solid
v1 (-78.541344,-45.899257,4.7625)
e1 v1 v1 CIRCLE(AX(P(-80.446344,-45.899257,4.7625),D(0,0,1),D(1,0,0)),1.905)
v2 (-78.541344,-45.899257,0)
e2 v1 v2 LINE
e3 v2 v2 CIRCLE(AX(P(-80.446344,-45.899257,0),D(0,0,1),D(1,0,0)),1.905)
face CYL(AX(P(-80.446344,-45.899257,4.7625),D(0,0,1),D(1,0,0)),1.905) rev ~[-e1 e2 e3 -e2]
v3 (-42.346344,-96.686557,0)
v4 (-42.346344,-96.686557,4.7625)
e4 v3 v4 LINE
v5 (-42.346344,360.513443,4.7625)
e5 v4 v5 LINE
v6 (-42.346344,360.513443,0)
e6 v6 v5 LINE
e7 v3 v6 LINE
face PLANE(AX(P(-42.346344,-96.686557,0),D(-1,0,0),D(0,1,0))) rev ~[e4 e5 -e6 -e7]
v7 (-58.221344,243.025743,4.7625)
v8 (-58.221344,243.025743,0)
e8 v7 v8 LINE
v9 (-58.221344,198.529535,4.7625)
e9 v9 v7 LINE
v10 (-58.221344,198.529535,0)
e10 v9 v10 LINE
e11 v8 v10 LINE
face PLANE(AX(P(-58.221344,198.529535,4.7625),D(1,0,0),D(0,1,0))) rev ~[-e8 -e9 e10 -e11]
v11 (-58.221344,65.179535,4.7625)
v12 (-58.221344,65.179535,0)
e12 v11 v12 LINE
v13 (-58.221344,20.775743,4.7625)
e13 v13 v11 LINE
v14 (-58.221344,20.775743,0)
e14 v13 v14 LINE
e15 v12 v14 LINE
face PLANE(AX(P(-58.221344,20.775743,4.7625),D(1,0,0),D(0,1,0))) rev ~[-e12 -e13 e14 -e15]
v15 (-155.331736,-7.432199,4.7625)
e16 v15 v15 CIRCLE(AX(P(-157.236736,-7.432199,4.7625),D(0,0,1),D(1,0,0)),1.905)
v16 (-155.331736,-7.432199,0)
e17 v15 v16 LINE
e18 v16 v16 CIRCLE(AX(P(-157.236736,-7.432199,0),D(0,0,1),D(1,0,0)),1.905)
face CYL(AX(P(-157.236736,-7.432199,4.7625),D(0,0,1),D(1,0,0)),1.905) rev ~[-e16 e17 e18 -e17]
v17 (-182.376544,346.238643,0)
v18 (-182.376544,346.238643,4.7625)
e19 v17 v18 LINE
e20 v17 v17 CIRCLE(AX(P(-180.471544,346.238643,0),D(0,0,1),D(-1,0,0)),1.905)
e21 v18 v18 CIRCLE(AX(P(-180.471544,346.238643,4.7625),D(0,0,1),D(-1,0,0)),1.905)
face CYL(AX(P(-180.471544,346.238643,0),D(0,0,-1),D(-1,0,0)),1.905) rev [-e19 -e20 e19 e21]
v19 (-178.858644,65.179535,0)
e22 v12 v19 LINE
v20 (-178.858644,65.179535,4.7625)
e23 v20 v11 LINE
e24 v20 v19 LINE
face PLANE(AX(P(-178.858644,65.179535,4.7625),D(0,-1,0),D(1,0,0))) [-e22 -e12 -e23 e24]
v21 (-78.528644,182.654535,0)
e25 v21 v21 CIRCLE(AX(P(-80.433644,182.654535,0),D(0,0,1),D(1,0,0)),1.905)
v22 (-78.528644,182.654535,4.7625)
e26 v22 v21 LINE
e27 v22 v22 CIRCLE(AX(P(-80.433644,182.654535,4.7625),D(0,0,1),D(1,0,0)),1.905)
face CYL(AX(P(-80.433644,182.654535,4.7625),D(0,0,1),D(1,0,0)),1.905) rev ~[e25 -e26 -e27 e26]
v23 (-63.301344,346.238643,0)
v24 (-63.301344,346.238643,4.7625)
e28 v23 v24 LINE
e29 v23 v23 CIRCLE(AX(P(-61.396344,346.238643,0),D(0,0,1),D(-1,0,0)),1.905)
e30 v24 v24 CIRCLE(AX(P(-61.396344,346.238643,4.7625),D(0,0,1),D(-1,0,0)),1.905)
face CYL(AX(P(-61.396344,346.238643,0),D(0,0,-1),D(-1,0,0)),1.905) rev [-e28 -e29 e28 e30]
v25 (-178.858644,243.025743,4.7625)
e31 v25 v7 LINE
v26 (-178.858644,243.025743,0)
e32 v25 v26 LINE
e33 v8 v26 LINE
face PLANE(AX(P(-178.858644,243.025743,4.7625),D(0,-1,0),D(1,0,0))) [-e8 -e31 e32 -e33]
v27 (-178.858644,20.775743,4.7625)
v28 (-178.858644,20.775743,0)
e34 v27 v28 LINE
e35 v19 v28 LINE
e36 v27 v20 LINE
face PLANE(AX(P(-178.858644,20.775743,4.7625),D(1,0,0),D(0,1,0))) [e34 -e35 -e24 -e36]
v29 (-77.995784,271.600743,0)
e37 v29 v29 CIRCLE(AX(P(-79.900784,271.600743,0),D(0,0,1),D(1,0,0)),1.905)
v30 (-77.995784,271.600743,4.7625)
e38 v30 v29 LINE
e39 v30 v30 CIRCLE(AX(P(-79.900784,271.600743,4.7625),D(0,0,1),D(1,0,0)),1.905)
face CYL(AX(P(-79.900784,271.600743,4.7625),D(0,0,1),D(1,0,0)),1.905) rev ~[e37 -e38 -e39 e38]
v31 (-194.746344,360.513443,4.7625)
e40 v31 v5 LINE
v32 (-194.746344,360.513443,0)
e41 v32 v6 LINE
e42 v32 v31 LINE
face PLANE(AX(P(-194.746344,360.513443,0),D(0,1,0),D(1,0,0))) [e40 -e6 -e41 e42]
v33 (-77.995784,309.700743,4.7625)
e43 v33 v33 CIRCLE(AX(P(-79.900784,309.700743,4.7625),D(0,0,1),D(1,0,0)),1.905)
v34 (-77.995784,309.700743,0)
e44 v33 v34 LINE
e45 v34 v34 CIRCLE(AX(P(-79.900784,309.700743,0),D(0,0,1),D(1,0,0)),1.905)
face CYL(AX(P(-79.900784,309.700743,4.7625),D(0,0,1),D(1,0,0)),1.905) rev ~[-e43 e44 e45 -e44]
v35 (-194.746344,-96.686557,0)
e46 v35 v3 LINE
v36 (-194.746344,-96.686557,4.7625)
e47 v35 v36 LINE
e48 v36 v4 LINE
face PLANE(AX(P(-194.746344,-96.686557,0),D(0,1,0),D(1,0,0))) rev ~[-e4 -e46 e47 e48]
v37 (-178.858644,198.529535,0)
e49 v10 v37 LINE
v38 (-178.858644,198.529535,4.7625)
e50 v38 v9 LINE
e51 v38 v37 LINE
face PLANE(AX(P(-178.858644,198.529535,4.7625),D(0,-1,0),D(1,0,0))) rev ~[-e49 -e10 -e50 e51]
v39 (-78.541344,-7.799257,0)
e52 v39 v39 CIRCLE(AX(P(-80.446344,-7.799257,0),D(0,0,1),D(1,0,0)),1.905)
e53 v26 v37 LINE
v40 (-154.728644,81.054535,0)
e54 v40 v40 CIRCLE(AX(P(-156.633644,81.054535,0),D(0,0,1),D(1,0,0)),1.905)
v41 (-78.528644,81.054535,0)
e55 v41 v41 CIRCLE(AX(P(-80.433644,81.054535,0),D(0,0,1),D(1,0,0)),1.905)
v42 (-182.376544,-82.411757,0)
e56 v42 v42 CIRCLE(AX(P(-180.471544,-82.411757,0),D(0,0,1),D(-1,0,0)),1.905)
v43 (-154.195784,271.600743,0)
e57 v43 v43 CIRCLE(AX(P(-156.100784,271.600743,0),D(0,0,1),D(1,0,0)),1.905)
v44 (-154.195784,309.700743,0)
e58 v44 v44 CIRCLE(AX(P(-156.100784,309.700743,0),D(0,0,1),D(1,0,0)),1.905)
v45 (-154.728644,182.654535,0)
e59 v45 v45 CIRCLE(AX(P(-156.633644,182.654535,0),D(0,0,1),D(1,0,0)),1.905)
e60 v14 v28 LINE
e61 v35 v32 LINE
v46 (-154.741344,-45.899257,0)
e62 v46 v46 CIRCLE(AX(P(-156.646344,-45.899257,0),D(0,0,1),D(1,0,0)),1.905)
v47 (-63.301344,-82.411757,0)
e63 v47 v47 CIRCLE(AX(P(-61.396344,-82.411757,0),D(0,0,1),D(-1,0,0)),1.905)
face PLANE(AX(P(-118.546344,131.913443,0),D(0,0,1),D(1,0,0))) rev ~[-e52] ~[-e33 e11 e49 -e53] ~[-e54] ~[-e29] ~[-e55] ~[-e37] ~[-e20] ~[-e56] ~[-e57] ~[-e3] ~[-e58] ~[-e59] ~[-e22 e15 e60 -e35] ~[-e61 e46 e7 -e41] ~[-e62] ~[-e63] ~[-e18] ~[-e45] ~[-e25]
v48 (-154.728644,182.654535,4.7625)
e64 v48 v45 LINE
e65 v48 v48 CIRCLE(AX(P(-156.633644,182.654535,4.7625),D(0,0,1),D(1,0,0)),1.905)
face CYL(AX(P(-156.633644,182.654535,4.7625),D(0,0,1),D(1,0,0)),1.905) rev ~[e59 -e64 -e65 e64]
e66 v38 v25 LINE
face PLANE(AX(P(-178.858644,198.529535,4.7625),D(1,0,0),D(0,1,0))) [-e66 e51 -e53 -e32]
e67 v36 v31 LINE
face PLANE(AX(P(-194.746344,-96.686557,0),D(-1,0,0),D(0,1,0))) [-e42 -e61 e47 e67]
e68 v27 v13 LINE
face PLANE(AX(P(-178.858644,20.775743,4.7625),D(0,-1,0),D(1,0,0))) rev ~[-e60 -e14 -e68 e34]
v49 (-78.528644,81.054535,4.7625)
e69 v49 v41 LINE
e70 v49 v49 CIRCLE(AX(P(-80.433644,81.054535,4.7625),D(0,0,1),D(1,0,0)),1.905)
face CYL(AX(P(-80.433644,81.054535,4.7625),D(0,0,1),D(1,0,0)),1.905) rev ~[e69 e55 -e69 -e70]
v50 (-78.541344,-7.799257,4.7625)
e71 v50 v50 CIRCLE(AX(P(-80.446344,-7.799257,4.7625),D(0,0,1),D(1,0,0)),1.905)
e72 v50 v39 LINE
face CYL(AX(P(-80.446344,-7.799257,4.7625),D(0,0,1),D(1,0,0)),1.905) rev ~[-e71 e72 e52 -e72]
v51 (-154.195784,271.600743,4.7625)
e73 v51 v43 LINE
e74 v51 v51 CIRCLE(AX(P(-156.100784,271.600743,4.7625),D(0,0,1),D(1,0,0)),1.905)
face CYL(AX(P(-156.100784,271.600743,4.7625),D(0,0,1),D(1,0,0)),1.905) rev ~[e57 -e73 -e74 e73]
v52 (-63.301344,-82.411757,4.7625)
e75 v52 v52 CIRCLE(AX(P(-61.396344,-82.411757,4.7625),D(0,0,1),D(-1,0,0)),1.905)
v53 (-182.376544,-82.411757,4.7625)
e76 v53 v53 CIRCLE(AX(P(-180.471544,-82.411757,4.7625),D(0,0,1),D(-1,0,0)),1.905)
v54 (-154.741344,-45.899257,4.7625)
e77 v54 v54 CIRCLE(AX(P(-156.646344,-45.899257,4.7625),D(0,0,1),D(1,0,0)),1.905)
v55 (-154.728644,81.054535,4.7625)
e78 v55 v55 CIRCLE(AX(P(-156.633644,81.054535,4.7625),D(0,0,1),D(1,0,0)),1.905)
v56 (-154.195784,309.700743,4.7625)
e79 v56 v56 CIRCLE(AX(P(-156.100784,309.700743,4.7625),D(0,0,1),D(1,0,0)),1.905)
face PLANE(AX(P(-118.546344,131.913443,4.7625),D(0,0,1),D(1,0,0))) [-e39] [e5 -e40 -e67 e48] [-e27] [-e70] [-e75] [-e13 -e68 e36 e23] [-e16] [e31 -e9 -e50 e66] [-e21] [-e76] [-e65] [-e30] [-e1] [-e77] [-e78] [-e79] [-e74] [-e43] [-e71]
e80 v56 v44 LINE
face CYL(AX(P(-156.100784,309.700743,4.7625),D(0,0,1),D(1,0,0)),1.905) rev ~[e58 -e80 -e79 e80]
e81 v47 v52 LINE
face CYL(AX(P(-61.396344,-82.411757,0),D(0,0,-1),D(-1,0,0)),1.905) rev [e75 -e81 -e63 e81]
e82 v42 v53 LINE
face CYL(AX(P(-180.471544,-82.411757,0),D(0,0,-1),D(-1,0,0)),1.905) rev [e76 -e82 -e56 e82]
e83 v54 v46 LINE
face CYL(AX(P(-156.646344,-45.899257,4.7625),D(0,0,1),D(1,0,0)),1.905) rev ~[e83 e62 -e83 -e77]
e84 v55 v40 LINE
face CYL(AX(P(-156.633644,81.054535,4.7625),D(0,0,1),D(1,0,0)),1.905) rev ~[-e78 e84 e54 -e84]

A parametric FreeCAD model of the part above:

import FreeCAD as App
import Part
import Sketcher
Q = App.Units.Quantity


def add_polygon(sketch, points):
    """Adds a closed chain of lines whose ends are joined by coincident constraints."""
    first, n = sketch.GeometryCount, len(points)
    for a, b in zip(points, points[1:] + points[:1]):
        sketch.addGeometry(Part.LineSegment(App.Vector(*a, 0), App.Vector(*b, 0)), False)
    for i in range(n):
        sketch.addConstraint(Sketcher.Constraint("Coincident", first + i, 2, first + (i + 1) % n, 1))

doc = App.newDocument("Part")
body = doc.addObject("PartDesign::Body", "Body")

# Sketch on XY plane
sketch1 = body.newObject("Sketcher::SketchObject", "Sketch")
sketch1.AttachmentSupport = (doc.getObject("XY_Plane"), [""])
sketch1.MapMode = "FlatFace"
add_polygon(sketch1, [(-194.746344, 360.513443), (-194.746344, -96.686557), (-42.346344, -96.686557), (-42.346344, 360.513443)])  # lines 0-3
sketch1.addGeometry(Part.Circle(App.Vector(-180.471544, -82.411757, 0), App.Vector(0, 0, 1), 1.905), False)  # 4
sketch1.addGeometry(Part.Circle(App.Vector(-61.396344, -82.411757, 0), App.Vector(0, 0, 1), 1.905), False)  # 5
sketch1.addGeometry(Part.Circle(App.Vector(-180.471544, 346.238643, 0), App.Vector(0, 0, 1), 1.905), False)  # 6
sketch1.addGeometry(Part.Circle(App.Vector(-61.396344, 346.238643, 0), App.Vector(0, 0, 1), 1.905), False)  # 7
sketch1.addConstraint([
    Sketcher.Constraint("Vertical", 0),
    Sketcher.Constraint("Horizontal", 1),
    Sketcher.Constraint("Vertical", 2),
    Sketcher.Constraint("Horizontal", 3),
    Sketcher.Constraint("Equal", 4, 5),
    Sketcher.Constraint("Equal", 5, 6),
    Sketcher.Constraint("Equal", 6, 7),
    Sketcher.Constraint("Horizontal", 4, 3, 5, 3),
    Sketcher.Constraint("Horizontal", 6, 3, 7, 3),
    Sketcher.Constraint("Vertical", 4, 3, 6, 3),
    Sketcher.Constraint("Vertical", 5, 3, 7, 3),
    Sketcher.Constraint("Diameter", 4, Q("0.15 in")),
    Sketcher.Constraint("DistanceX", 1, 1, 1, 2, Q("6 in")),
    Sketcher.Constraint("DistanceY", 0, 2, 0, 1, Q("18 in")),
    Sketcher.Constraint("DistanceX", 0, 2, 5, 3, Q("5.25 in")),
    Sketcher.Constraint("DistanceX", 4, 3, 5, 3, Q("4.688 in")),
    Sketcher.Constraint("DistanceY", 4, 3, 6, 3, Q("16.876 in")),
    Sketcher.Constraint("DistanceY", 0, 2, 4, 3, Q("0.562 in")),
    Sketcher.Constraint("DistanceX", 4, 3, -1, 1, 180.471544),
    Sketcher.Constraint("DistanceY", 4, 3, -1, 1, 82.411757),
])
pad1 = body.newObject("PartDesign::Pad", "Pad")
pad1.Profile = sketch1
pad1.Length = Q("0.1875 in")

# Sketch on XY plane
sketch2 = body.newObject("Sketcher::SketchObject", "Sketch001")
sketch2.AttachmentSupport = (doc.getObject("XY_Plane"), [""])
sketch2.MapMode = "FlatFace"
sketch2.AttachmentOffset = App.Placement(App.Vector(0, 0, 0.1875 * 25.4), App.Rotation())
sketch2.addGeometry(Part.Circle(App.Vector(-156.633644, 182.654535, 0), App.Vector(0, 0, 1), 1.905), False)
sketch2.addConstraint([
    Sketcher.Constraint("Diameter", 0, Q("0.15 in")),
    Sketcher.Constraint("DistanceX", 0, 3, -1, 1, 156.633644),
    Sketcher.Constraint("DistanceY", -1, 1, 0, 3, 182.654535),
])
pocket1 = body.newObject("PartDesign::Pocket", "Pocket")
pocket1.Profile = sketch2
pocket1.Type = "UpToFirst"

# Sketch on XY plane
sketch3 = body.newObject("Sketcher::SketchObject", "Sketch002")
sketch3.AttachmentSupport = (doc.getObject("XY_Plane"), [""])
sketch3.MapMode = "FlatFace"
sketch3.AttachmentOffset = App.Placement(App.Vector(0, 0, 0.1875 * 25.4), App.Rotation())
sketch3.addGeometry(Part.Circle(App.Vector(-80.433644, 182.654535, 0), App.Vector(0, 0, 1), 1.905), False)
sketch3.addConstraint([
    Sketcher.Constraint("Diameter", 0, Q("0.15 in")),
    Sketcher.Constraint("DistanceX", 0, 3, -1, 1, 80.433644),
    Sketcher.Constraint("DistanceY", -1, 1, 0, 3, 182.654535),
])
pocket2 = body.newObject("PartDesign::Pocket", "Pocket001")
pocket2.Profile = sketch3
pocket2.Type = "UpToFirst"

# Sketch on XY plane
sketch4 = body.newObject("Sketcher::SketchObject", "Sketch003")
sketch4.AttachmentSupport = (doc.getObject("XY_Plane"), [""])
sketch4.MapMode = "FlatFace"
sketch4.AttachmentOffset = App.Placement(App.Vector(0, 0, 0.1875 * 25.4), App.Rotation())
sketch4.addGeometry(Part.Circle(App.Vector(-156.633644, 81.054535, 0), App.Vector(0, 0, 1), 1.905), False)
sketch4.addConstraint([
    Sketcher.Constraint("Diameter", 0, Q("0.15 in")),
    Sketcher.Constraint("DistanceX", 0, 3, -1, 1, 156.633644),
    Sketcher.Constraint("DistanceY", -1, 1, 0, 3, 81.054535),
])
pocket3 = body.newObject("PartDesign::Pocket", "Pocket002")
pocket3.Profile = sketch4
pocket3.Type = "UpToFirst"

# Sketch on XY plane
sketch5 = body.newObject("Sketcher::SketchObject", "Sketch004")
sketch5.AttachmentSupport = (doc.getObject("XY_Plane"), [""])
sketch5.MapMode = "FlatFace"
sketch5.AttachmentOffset = App.Placement(App.Vector(0, 0, 0.1875 * 25.4), App.Rotation())
sketch5.addGeometry(Part.Circle(App.Vector(-80.433644, 81.054535, 0), App.Vector(0, 0, 1), 1.905), False)
sketch5.addConstraint([
    Sketcher.Constraint("Diameter", 0, Q("0.15 in")),
    Sketcher.Constraint("DistanceX", 0, 3, -1, 1, 80.433644),
    Sketcher.Constraint("DistanceY", -1, 1, 0, 3, 81.054535),
])
pocket4 = body.newObject("PartDesign::Pocket", "Pocket003")
pocket4.Profile = sketch5
pocket4.Type = "UpToFirst"

# Sketch on XY plane
sketch6 = body.newObject("Sketcher::SketchObject", "Sketch005")
sketch6.AttachmentSupport = (doc.getObject("XY_Plane"), [""])
sketch6.MapMode = "FlatFace"
sketch6.AttachmentOffset = App.Placement(App.Vector(0, 0, 0.1875 * 25.4), App.Rotation())
add_polygon(sketch6, [(-178.858644, 65.179535), (-178.858644, 20.775743), (-58.221344, 20.775743), (-58.221344, 65.179535)])  # lines 0-3
sketch6.addConstraint([
    Sketcher.Constraint("Vertical", 0),
    Sketcher.Constraint("Horizontal", 1),
    Sketcher.Constraint("Vertical", 2),
    Sketcher.Constraint("Horizontal", 3),
    Sketcher.Constraint("DistanceX", 1, 1, 1, 2, Q("4.7495 in")),
    Sketcher.Constraint("DistanceY", 0, 2, 0, 1, 44.403792),
    Sketcher.Constraint("DistanceX", 0, 2, -1, 1, 178.858644),
    Sketcher.Constraint("DistanceY", -1, 1, 0, 2, 20.775743),
])
pocket5 = body.newObject("PartDesign::Pocket", "Pocket004")
pocket5.Profile = sketch6
pocket5.Type = "UpToFirst"

# Sketch on XY plane
sketch7 = body.newObject("Sketcher::SketchObject", "Sketch006")
sketch7.AttachmentSupport = (doc.getObject("XY_Plane"), [""])
sketch7.MapMode = "FlatFace"
sketch7.AttachmentOffset = App.Placement(App.Vector(0, 0, 0.1875 * 25.4), App.Rotation())
add_polygon(sketch7, [(-178.858644, 243.025743), (-178.858644, 198.529535), (-58.221344, 198.529535), (-58.221344, 243.025743)])  # lines 0-3
sketch7.addConstraint([
    Sketcher.Constraint("Vertical", 0),
    Sketcher.Constraint("Horizontal", 1),
    Sketcher.Constraint("Vertical", 2),
    Sketcher.Constraint("Horizontal", 3),
    Sketcher.Constraint("DistanceX", 1, 1, 1, 2, Q("4.7495 in")),
    Sketcher.Constraint("DistanceY", 0, 2, 0, 1, 44.496208),
    Sketcher.Constraint("DistanceX", 0, 2, -1, 1, 178.858644),
    Sketcher.Constraint("DistanceY", -1, 1, 0, 2, 198.529535),
])
pocket6 = body.newObject("PartDesign::Pocket", "Pocket005")
pocket6.Profile = sketch7
pocket6.Type = "UpToFirst"

# Sketch on XY plane
sketch8 = body.newObject("Sketcher::SketchObject", "Sketch007")
sketch8.AttachmentSupport = (doc.getObject("XY_Plane"), [""])
sketch8.MapMode = "FlatFace"
sketch8.AttachmentOffset = App.Placement(App.Vector(0, 0, 0.1875 * 25.4), App.Rotation())
sketch8.addGeometry([
    Part.Circle(App.Vector(-157.236736, -7.432199, 0), App.Vector(0, 0, 1), 1.905),  # 0
    Part.Circle(App.Vector(-156.646344, -45.899257, 0), App.Vector(0, 0, 1), 1.905),  # 1
    Part.Circle(App.Vector(-80.446344, -45.899257, 0), App.Vector(0, 0, 1), 1.905),  # 2
    Part.Circle(App.Vector(-80.446344, -7.799257, 0), App.Vector(0, 0, 1), 1.905),  # 3
    Part.Circle(App.Vector(-79.900784, 271.600743, 0), App.Vector(0, 0, 1), 1.905),  # 4
    Part.Circle(App.Vector(-79.900784, 309.700743, 0), App.Vector(0, 0, 1), 1.905),  # 5
    Part.Circle(App.Vector(-156.100784, 309.700743, 0), App.Vector(0, 0, 1), 1.905),  # 6
    Part.Circle(App.Vector(-156.100784, 271.600743, 0), App.Vector(0, 0, 1), 1.905),  # 7
], False)
sketch8.addConstraint([
    Sketcher.Constraint("Equal", 0, 1),
    Sketcher.Constraint("Equal", 1, 2),
    Sketcher.Constraint("Equal", 2, 3),
    Sketcher.Constraint("Equal", 3, 4),
    Sketcher.Constraint("Equal", 4, 5),
    Sketcher.Constraint("Equal", 5, 6),
    Sketcher.Constraint("Equal", 6, 7),
    Sketcher.Constraint("Horizontal", 1, 3, 2, 3),
    Sketcher.Constraint("Horizontal", 5, 3, 6, 3),
    Sketcher.Constraint("Horizontal", 4, 3, 7, 3),
    Sketcher.Constraint("Vertical", 2, 3, 3, 3),
    Sketcher.Constraint("Vertical", 4, 3, 5, 3),
    Sketcher.Constraint("Vertical", 6, 3, 7, 3),
    Sketcher.Constraint("Diameter", 0, Q("0.15 in")),
    Sketcher.Constraint("DistanceX", 1, 3, 2, 3, Q("3 in")),
    Sketcher.Constraint("DistanceY", 3, 3, 4, 3, Q("11 in")),
    Sketcher.Constraint("DistanceY", 2, 3, 5, 3, Q("14 in")),
    Sketcher.Constraint("DistanceX", 6, 3, 5, 3, Q("3 in")),
    Sketcher.Constraint("DistanceY", 2, 3, 3, 3, Q("1.5 in")),
    Sketcher.Constraint("DistanceX", 4, 3, -1, 1, Q("3.1457002 in")),
    Sketcher.Constraint("DistanceY", 0, 3, -1, 1, 7.432199),
    Sketcher.Constraint("DistanceY", 1, 3, 0, 3, 38.467058),
    Sketcher.Constraint("DistanceX", 3, 3, 4, 3, 0.545559),
    Sketcher.Constraint("DistanceX", 0, 3, 4, 3, 77.335952),
])
pocket7 = body.newObject("PartDesign::Pocket", "Pocket006")
pocket7.Profile = sketch8
pocket7.Type = "ThroughAll"

doc.recompute()
